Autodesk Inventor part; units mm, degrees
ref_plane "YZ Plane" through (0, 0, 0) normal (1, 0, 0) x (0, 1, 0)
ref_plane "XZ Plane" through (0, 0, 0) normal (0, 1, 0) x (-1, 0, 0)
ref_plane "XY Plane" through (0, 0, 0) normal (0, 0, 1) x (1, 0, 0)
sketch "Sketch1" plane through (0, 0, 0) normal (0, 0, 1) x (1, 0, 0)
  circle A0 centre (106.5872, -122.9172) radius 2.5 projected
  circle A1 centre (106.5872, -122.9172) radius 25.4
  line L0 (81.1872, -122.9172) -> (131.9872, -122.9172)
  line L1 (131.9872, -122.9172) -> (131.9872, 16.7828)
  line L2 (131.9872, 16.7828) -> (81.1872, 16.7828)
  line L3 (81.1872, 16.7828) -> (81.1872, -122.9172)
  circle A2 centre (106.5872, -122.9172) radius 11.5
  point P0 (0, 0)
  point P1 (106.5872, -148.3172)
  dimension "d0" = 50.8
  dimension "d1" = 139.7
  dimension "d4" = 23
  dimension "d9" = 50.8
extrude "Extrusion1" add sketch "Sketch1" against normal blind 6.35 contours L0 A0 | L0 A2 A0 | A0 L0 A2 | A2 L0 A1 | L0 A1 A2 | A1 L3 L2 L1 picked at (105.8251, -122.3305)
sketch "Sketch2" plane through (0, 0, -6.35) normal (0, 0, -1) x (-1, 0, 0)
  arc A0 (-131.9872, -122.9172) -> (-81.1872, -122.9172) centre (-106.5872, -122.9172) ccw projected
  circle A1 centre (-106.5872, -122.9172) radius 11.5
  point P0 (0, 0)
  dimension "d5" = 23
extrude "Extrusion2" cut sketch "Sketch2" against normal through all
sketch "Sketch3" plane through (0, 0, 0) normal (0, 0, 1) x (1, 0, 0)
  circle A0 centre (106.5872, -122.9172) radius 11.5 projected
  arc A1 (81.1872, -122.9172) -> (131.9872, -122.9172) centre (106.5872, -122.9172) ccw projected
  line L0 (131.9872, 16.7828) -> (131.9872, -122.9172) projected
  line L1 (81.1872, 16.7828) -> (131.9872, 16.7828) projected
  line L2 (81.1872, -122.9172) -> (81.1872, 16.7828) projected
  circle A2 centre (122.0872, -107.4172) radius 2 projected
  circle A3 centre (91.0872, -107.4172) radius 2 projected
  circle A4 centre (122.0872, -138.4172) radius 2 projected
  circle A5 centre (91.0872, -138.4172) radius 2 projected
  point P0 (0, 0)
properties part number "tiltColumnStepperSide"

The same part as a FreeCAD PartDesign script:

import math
import FreeCAD as App
import Part
import Sketcher

V = App.Vector
Q = App.Units.Quantity

doc = App.newDocument("Part")
body = doc.addObject("PartDesign::Body", "Body")

sketch1 = body.newObject("Sketcher::SketchObject", "Sketch")
sketch1.AttachmentSupport = (doc.getObject("XY_Plane"), [""])
sketch1.MapMode = "FlatFace"
sketch1.addGeometry([
    Part.ArcOfCircle(Part.Circle(V(106.6, -122.9, 0), V(0, 0, 1), 25.4), math.radians(180), math.radians(360)),
    Part.LineSegment(V(132, -122.9, 0), V(132, 16.8, 0)),
    Part.LineSegment(V(132, 16.8, 0), V(81.2, 16.8, 0)),
    Part.LineSegment(V(81.2, 16.8, 0), V(81.2, -122.9, 0)),
    Part.LineSegment(V(104.1, -122.9, 0), V(109.1, -122.9, 0)),
    Part.ArcOfCircle(Part.Circle(V(106.6, -122.9, 0), V(0, 0, 1), 2.5), math.radians(180), math.radians(360)),
], False)
sketch1.addConstraint([
    Sketcher.Constraint("Tangent", 0, 2, 1, 1),
    Sketcher.Constraint("Coincident", 1, 2, 2, 1),
    Sketcher.Constraint("Coincident", 2, 2, 3, 1),
    Sketcher.Constraint("Tangent", 3, 2, 0, 1),
    Sketcher.Constraint("Coincident", 4, 1, 5, 1),
    Sketcher.Constraint("Coincident", 5, 2, 4, 2),
    Sketcher.Constraint("Vertical", 1),
    Sketcher.Constraint("Horizontal", 2),
    Sketcher.Constraint("Vertical", 3),
    Sketcher.Constraint("Horizontal", 4),
    Sketcher.Constraint("Coincident", 5, 3, 0, 3),
    Sketcher.Constraint("Horizontal", 3, 2, 4, 1),
    Sketcher.Constraint("Radius", 0, Q("1 in")),
    Sketcher.Constraint("DistanceY", 1, 1, 1, 2, Q("5.5 in")),
    Sketcher.Constraint("Radius", 5, Q("2.5 mm")),
    Sketcher.Constraint("DistanceX", -1, 1, 0, 3, Q("106.5872 mm")),
    Sketcher.Constraint("DistanceY", 0, 3, -1, 1, Q("122.9172 mm")),
])
pad1 = body.newObject("PartDesign::Pad", "Pad")
pad1.Profile = sketch1
pad1.Length = Q("0.25 in")
pad1.Reversed = True

sketch2 = body.newObject("Sketcher::SketchObject", "Sketch001")
sketch2.AttachmentSupport = (doc.getObject("XY_Plane"), [""])
sketch2.MapMode = "FlatFace"
sketch2.AttachmentOffset = App.Placement(V(0, 0, -0.25 * 25.4), App.Rotation())
sketch2.addGeometry(Part.Circle(V(107, -123, 0), V(0, 0, 1), 12), False)
sketch2.addConstraint([
    Sketcher.Constraint("Diameter", 0, Q("0.9055 in")),
    Sketcher.Constraint("DistanceX", -1, 1, 0, 3, Q("106.5872 mm")),
    Sketcher.Constraint("DistanceY", 0, 3, -1, 1, Q("122.9172 mm")),
])
pocket1 = body.newObject("PartDesign::Pocket", "Pocket")
pocket1.Profile = sketch2
pocket1.Type = "ThroughAll"
pocket1.Reversed = True

doc.recompute()
